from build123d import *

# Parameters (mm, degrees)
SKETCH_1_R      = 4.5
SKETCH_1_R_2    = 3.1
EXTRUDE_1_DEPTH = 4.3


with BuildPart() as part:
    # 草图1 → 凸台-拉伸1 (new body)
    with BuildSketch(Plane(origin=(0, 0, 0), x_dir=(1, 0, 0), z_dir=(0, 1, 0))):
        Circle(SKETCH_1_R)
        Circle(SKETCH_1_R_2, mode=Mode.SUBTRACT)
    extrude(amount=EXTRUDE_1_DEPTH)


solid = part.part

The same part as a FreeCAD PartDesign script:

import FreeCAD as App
import Part
import Sketcher
from FreeCAD import Vector

doc = App.newDocument("Part")
body = doc.addObject("PartDesign::Body", "Body")

# Sketch on XZ plane
sketch1 = body.newObject("Sketcher::SketchObject", "Sketch")
sketch1.AttachmentSupport = (doc.getObject("XZ_Plane"), [""])
sketch1.MapMode = "FlatFace"
sketch1.addGeometry([
    Part.Circle(Vector(0, 0, 0), Vector(0, 0, 1), 4.5),
    Part.Circle(Vector(0, 0, 0), Vector(0, 0, 1), 3.1),
], False)
sketch1.addConstraint([
    Sketcher.Constraint("Coincident", 0, 3, -1, 1),
    Sketcher.Constraint("Coincident", 1, 3, -1, 1),
    Sketcher.Constraint("Diameter", 0, 9.0),
    Sketcher.Constraint("Diameter", 1, 6.2),
])
pad1 = body.newObject("PartDesign::Pad", "Pad")
pad1.Profile = sketch1
pad1.Length = 4.3
pad1.Reversed = True

doc.recompute()
